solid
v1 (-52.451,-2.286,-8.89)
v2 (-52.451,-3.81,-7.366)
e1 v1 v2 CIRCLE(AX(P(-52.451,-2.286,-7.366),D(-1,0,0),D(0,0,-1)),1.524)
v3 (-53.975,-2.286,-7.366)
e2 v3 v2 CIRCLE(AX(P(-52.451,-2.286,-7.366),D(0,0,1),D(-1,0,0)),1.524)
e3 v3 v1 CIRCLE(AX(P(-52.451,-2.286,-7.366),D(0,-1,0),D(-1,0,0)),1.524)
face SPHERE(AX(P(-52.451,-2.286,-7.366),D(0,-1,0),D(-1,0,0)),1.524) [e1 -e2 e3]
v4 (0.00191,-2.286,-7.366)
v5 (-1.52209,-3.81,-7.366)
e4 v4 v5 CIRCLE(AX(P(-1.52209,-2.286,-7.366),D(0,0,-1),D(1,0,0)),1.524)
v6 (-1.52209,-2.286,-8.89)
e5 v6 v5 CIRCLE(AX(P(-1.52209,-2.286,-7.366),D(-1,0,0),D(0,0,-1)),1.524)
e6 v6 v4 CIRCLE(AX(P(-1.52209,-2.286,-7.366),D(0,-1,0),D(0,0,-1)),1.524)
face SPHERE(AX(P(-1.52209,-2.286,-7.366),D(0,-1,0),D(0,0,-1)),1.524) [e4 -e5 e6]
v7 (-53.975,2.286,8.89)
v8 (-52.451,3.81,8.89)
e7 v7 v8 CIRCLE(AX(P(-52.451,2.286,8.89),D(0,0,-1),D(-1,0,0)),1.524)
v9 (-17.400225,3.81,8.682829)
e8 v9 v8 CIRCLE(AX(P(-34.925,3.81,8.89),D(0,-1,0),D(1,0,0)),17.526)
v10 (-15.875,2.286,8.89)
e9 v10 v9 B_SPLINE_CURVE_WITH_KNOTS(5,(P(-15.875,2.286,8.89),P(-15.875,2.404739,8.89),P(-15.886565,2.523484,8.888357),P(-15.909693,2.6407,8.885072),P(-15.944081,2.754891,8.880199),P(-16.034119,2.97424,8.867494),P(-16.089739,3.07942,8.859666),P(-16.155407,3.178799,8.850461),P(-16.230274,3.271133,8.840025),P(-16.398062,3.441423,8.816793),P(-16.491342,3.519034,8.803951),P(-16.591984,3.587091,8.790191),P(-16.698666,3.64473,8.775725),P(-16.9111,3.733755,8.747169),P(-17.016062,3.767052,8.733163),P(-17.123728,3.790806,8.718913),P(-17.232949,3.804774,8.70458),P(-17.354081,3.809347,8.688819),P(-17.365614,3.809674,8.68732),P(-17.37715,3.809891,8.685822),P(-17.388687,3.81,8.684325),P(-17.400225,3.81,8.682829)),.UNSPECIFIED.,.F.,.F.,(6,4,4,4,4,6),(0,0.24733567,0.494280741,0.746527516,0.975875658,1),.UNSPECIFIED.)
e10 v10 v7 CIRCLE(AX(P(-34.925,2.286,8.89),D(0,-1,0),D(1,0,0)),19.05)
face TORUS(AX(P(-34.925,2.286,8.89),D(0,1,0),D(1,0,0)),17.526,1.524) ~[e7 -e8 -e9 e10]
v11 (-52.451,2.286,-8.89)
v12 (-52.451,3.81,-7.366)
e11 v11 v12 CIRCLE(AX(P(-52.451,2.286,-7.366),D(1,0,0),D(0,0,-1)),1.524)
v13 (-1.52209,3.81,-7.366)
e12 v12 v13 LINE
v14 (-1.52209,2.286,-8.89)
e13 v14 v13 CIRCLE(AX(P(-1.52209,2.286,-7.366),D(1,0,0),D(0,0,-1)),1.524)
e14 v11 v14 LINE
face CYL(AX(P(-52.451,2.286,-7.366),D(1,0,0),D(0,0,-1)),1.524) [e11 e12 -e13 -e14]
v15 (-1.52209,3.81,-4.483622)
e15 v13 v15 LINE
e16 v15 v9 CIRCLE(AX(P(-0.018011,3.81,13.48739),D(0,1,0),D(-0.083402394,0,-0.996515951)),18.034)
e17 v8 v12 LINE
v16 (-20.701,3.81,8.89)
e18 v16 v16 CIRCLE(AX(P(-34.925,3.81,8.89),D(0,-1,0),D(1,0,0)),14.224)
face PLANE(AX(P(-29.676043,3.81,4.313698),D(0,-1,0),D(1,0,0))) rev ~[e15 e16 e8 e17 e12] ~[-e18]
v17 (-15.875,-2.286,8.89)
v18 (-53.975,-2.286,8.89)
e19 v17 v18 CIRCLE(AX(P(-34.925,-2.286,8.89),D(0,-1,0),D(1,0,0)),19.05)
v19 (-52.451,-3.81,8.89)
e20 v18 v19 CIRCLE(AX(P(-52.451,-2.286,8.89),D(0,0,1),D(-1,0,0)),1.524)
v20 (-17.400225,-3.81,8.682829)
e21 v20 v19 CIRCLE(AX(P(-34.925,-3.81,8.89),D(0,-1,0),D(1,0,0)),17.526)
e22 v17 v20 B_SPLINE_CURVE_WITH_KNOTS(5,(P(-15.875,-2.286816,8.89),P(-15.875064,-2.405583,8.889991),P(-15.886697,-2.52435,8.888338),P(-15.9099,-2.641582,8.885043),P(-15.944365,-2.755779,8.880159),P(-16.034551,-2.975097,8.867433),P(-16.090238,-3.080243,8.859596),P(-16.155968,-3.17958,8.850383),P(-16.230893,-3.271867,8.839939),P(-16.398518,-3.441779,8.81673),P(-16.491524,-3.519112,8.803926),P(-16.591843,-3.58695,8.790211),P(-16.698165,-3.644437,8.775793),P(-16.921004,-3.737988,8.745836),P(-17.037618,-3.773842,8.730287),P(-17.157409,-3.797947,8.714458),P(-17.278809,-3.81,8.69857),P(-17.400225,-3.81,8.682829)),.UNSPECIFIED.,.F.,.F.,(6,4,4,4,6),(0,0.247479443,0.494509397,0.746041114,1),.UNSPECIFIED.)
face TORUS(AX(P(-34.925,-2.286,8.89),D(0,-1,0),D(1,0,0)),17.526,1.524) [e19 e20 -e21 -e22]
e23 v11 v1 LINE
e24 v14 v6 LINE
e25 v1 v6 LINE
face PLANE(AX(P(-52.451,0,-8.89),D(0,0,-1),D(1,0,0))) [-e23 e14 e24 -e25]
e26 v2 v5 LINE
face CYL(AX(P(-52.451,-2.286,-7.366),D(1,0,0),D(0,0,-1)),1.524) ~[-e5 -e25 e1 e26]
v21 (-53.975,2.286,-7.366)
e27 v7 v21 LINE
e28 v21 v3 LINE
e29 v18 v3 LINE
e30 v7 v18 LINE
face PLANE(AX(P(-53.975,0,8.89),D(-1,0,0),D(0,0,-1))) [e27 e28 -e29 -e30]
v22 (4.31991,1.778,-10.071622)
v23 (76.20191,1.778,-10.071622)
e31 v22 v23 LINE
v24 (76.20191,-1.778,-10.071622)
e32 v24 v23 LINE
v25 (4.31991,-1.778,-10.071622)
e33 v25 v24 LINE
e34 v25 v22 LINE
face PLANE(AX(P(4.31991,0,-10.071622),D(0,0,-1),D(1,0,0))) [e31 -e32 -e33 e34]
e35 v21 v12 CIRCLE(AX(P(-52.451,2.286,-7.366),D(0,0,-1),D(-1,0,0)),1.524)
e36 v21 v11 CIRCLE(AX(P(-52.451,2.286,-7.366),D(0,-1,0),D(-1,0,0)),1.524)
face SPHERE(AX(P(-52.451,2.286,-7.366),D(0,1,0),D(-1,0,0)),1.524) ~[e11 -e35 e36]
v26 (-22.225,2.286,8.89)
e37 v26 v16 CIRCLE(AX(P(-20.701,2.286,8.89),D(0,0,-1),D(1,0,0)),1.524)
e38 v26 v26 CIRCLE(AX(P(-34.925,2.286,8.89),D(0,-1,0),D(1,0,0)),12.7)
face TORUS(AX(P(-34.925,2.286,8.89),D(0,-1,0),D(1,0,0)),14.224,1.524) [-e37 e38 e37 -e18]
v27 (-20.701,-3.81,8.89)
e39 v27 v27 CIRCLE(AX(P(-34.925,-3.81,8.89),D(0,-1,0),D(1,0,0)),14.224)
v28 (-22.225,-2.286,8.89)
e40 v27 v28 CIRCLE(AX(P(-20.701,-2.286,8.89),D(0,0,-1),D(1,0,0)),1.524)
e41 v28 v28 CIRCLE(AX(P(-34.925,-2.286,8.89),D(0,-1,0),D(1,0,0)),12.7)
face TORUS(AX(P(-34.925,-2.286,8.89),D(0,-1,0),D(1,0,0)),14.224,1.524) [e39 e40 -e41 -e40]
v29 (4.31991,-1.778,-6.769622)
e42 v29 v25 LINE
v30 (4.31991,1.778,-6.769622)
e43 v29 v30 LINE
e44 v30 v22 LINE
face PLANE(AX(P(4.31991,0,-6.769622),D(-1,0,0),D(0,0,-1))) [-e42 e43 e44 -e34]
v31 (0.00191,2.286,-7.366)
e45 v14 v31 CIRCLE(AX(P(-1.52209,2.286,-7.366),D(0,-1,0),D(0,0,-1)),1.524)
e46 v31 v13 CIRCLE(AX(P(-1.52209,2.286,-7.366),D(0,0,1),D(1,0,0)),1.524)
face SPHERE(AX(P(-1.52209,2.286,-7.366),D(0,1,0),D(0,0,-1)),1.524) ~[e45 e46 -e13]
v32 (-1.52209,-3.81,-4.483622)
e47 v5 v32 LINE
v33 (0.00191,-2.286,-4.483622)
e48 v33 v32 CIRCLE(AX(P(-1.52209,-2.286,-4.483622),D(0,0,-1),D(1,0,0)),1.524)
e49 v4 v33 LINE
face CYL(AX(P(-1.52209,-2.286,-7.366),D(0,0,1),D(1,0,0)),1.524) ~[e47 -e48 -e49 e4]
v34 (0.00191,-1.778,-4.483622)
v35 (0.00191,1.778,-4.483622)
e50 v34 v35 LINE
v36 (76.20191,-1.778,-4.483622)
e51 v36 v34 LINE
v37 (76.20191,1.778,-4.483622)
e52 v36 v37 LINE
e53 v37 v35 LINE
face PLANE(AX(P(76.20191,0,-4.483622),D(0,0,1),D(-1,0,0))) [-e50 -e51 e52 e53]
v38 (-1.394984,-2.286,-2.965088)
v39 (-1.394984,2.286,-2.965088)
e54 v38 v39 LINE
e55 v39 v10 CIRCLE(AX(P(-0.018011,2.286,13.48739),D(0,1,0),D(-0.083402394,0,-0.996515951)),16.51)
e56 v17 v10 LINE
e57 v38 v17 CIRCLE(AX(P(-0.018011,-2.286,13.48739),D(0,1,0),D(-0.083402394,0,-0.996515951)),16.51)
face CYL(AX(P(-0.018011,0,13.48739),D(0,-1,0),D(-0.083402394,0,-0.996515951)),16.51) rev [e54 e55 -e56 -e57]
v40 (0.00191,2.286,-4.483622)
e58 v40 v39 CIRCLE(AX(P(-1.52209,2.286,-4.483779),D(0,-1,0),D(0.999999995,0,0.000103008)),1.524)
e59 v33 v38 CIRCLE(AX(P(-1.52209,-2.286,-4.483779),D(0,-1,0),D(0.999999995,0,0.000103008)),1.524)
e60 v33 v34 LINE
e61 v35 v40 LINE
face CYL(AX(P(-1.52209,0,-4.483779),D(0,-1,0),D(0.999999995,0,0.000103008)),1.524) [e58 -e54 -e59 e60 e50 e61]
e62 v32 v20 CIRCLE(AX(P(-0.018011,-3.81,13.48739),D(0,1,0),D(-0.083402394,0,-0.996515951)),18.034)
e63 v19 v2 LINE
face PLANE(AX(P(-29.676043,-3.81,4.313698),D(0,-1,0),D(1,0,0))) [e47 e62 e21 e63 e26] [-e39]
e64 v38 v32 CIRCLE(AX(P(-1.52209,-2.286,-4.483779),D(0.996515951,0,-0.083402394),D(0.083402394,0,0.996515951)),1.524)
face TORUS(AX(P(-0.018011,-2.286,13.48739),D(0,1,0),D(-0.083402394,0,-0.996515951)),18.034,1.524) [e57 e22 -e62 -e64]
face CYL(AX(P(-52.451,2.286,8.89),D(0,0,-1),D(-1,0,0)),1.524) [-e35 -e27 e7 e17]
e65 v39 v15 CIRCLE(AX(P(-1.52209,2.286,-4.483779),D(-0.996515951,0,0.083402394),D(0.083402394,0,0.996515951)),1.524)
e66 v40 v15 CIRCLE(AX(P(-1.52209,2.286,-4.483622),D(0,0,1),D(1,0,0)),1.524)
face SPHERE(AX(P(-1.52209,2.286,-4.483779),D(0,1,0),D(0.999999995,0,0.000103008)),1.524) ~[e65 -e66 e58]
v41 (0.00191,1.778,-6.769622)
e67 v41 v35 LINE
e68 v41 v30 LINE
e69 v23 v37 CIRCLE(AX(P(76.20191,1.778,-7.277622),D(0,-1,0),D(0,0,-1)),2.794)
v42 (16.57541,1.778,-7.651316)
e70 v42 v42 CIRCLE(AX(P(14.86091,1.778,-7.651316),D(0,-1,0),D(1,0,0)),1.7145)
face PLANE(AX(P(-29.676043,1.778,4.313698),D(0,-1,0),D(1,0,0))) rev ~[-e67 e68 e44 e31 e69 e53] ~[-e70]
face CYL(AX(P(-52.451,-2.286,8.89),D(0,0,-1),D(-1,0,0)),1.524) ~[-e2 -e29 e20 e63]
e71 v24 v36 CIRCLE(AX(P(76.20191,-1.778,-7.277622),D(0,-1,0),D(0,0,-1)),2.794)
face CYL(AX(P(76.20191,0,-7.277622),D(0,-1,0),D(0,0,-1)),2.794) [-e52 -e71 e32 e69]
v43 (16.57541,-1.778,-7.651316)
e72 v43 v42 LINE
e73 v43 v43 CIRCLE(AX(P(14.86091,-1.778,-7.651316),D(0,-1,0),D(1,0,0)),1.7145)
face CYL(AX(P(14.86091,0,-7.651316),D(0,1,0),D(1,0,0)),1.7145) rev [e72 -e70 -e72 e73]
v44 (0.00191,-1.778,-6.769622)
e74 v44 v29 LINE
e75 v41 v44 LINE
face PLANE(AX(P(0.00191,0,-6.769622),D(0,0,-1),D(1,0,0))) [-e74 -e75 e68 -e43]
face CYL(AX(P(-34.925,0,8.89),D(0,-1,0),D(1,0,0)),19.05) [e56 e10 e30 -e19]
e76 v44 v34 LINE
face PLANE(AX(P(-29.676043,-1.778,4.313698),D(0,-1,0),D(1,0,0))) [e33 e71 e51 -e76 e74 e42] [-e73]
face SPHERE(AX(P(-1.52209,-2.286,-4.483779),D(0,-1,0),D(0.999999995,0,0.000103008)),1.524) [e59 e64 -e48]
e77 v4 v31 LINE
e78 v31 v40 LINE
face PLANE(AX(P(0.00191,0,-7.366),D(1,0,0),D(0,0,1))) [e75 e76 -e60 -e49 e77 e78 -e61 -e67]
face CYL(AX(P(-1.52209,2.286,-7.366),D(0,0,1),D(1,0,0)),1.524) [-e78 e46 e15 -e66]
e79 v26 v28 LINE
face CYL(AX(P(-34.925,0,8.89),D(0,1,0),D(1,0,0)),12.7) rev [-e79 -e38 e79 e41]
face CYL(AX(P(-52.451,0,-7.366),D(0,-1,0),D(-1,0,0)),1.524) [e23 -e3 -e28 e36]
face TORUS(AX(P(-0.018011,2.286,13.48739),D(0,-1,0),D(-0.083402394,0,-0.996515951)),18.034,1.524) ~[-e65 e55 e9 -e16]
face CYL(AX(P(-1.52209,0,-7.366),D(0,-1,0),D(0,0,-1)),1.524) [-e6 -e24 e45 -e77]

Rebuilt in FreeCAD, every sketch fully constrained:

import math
import FreeCAD as App
import Part
import Sketcher
from FreeCAD import Vector
Q = App.Units.Quantity


def edges_at(feature, points):
    """Names of the edges that pass closest to the given points."""
    edges = feature.Shape.Edges
    near = lambda p: min(range(len(edges)), key=lambda i: edges[i].distToShape(Part.Vertex(*p))[0])
    return sorted({f"Edge{near(p) + 1}" for p in points})

doc = App.newDocument("Part")
body = doc.addObject("PartDesign::Body", "Body")

# Sketch on XZ plane
sketch1 = body.newObject("Sketcher::SketchObject", "Sketch")
sketch1.AttachmentSupport = (doc.getObject("XZ_Plane"), [""])
sketch1.MapMode = "FlatFace"
sketch1.addGeometry(Part.ArcOfCircle(Part.Circle(Vector(-34.9, 8.9, 0), Vector(0, 0, 1), 19.1), math.radians(0), math.radians(180)), False)
sketch1.addGeometry(Part.LineSegment(Vector(-54, 8.9, 0), Vector(-54, -7.4, 0)), False)
sketch1.addGeometry(Part.ArcOfCircle(Part.Circle(Vector(-52.5, -7.4, 0), Vector(0, 0, 1), 1.5), math.radians(180), math.radians(270)), False)
sketch1.addGeometry(Part.LineSegment(Vector(-52.5, -8.9, 0), Vector(-1.5, -8.9, 0)), False)
sketch1.addGeometry(Part.ArcOfCircle(Part.Circle(Vector(-1.5, -7.4, 0), Vector(0, 0, 1), 1.5), math.radians(-90), math.radians(0)), False)
sketch1.addGeometry(Part.LineSegment(Vector(0, -7.4, 0), Vector(0, -6.8, 0)), False)
sketch1.addGeometry(Part.LineSegment(Vector(0, -6.8, 0), Vector(4.3, -6.8, 0)), False)
sketch1.addGeometry(Part.LineSegment(Vector(4.3, -6.8, 0), Vector(4.3, -10.1, 0)), False)
sketch1.addGeometry(Part.LineSegment(Vector(4.3, -10.1, 0), Vector(76.2, -10.1, 0)), False)
sketch1.addGeometry(Part.ArcOfCircle(Part.Circle(Vector(76.2, -7.3, 0), Vector(0, 0, 1), 2.8), math.radians(-90), math.radians(90)), False)
sketch1.addGeometry(Part.LineSegment(Vector(76.2, -4.5, 0), Vector(0, -4.5, 0)), False)
sketch1.addGeometry(Part.ArcOfCircle(Part.Circle(Vector(-1.5, -4.5, 0), Vector(0, 0, 1), 1.5), math.radians(0), math.radians(85)), False)
sketch1.addGeometry(Part.ArcOfCircle(Part.Circle(Vector(0, 13.5, 0), Vector(0, 0, 1), 16.5), math.radians(-164), math.radians(-95)), False)
sketch1.addGeometry(Part.Circle(Vector(14.9, -7.7, 0), Vector(0, 0, 1), 1.7), False)
sketch1.addGeometry(Part.Circle(Vector(-34.9, 8.9, 0), Vector(0, 0, 1), 12.7), False)
sketch1.addConstraint(Sketcher.Constraint("Tangent", 0, 2, 1, 1))
sketch1.addConstraint(Sketcher.Constraint("Tangent", 1, 2, 2, 1))
sketch1.addConstraint(Sketcher.Constraint("Tangent", 2, 2, 3, 1))
sketch1.addConstraint(Sketcher.Constraint("Tangent", 3, 2, 4, 1))
sketch1.addConstraint(Sketcher.Constraint("Tangent", 4, 2, 5, 1))
sketch1.addConstraint(Sketcher.Constraint("Coincident", 5, 2, 6, 1))
sketch1.addConstraint(Sketcher.Constraint("Coincident", 6, 2, 7, 1))
sketch1.addConstraint(Sketcher.Constraint("Coincident", 7, 2, 8, 1))
sketch1.addConstraint(Sketcher.Constraint("Tangent", 8, 2, 9, 1))
sketch1.addConstraint(Sketcher.Constraint("Tangent", 9, 2, 10, 1))
sketch1.addConstraint(Sketcher.Constraint("Coincident", 10, 2, 11, 1))
sketch1.addConstraint(Sketcher.Constraint("Tangent", 11, 2, 12, 2))
sketch1.addConstraint(Sketcher.Constraint("Coincident", 12, 1, 0, 1))
sketch1.addConstraint(Sketcher.Constraint("Vertical", 1))
sketch1.addConstraint(Sketcher.Constraint("Horizontal", 3))
sketch1.addConstraint(Sketcher.Constraint("Vertical", 5))
sketch1.addConstraint(Sketcher.Constraint("Horizontal", 6))
sketch1.addConstraint(Sketcher.Constraint("Vertical", 7))
sketch1.addConstraint(Sketcher.Constraint("Horizontal", 8))
sketch1.addConstraint(Sketcher.Constraint("Horizontal", 10))
sketch1.addConstraint(Sketcher.Constraint("Coincident", 14, 3, 0, 3))
sketch1.addConstraint(Sketcher.Constraint("Equal", 2, 4))
sketch1.addConstraint(Sketcher.Constraint("Equal", 4, 11))
sketch1.addConstraint(Sketcher.Constraint("Horizontal", 0, 2, 12, 1))
sketch1.addConstraint(Sketcher.Constraint("Vertical", 4, 3, 11, 3))
sketch1.addConstraint(Sketcher.Constraint("Diameter", 14, Q("1 in")))
sketch1.addConstraint(Sketcher.Constraint("DistanceX", 10, 2, 10, 1, Q("3 in")))
sketch1.addConstraint(Sketcher.Constraint("Radius", 0, Q("0.75 in")))
sketch1.addConstraint(Sketcher.Constraint("Radius", 2, Q("0.06 in")))
sketch1.addConstraint(Sketcher.Constraint("Radius", 9, Q("0.11 in")))
sketch1.addConstraint(Sketcher.Constraint("Radius", 12, Q("0.65 in")))
sketch1.addConstraint(Sketcher.Constraint("Diameter", 13, Q("0.135 in")))
sketch1.addConstraint(Sketcher.Constraint("DistanceX", 6, 1, 6, 2, Q("0.17 in")))
sketch1.addConstraint(Sketcher.Constraint("DistanceY", 1, 2, 1, 1, Q("0.64 in")))
sketch1.addConstraint(Sketcher.Constraint("DistanceY", 7, 2, 7, 1, Q("0.13 in")))
sketch1.addConstraint(Sketcher.Constraint("DistanceY", -1, 1, 0, 3, Q("0.35 in")))
sketch1.addConstraint(Sketcher.Constraint("DistanceX", 0, 3, -1, 1, Q("1.375 in")))
sketch1.addConstraint(Sketcher.Constraint("DistanceX", 4, 3, 13, 3, Q("0.645 in")))
sketch1.addConstraint(Sketcher.Constraint("DistanceX", 3, 1, 3, 2, Q("50.92891 mm")))
sketch1.addConstraint(Sketcher.Constraint("DistanceY", 5, 1, 5, 2, Q("0.596378 mm")))
sketch1.addConstraint(Sketcher.Constraint("DistanceY", 11, 3, -1, 1, Q("4.483779 mm")))
sketch1.addConstraint(Sketcher.Constraint("DistanceY", 13, 3, -1, 1, Q("7.651316 mm")))
pad1 = body.newObject("PartDesign::Pad", "Pad")
pad1.Profile = sketch1
pad1.Length = Q("0.14 in")
pad1.Midplane = True

# Sketch on XZ plane
sketch2 = body.newObject("Sketcher::SketchObject", "Sketch001")
sketch2.AttachmentSupport = (doc.getObject("XZ_Plane"), [""])
sketch2.MapMode = "FlatFace"
sketch2.addGeometry(Part.ArcOfCircle(Part.Circle(Vector(-34.9, 8.9, 0), Vector(0, 0, 1), 19.1), math.radians(0), math.radians(180)), False)
sketch2.addGeometry(Part.LineSegment(Vector(-54, 8.9, 0), Vector(-54, -7.4, 0)), False)
sketch2.addGeometry(Part.ArcOfCircle(Part.Circle(Vector(-52.5, -7.4, 0), Vector(0, 0, 1), 1.5), math.radians(180), math.radians(270)), False)
sketch2.addGeometry(Part.LineSegment(Vector(-52.5, -8.9, 0), Vector(-1.5, -8.9, 0)), False)
sketch2.addGeometry(Part.ArcOfCircle(Part.Circle(Vector(-1.5, -7.4, 0), Vector(0, 0, 1), 1.5), math.radians(-90), math.radians(0)), False)
sketch2.addGeometry(Part.LineSegment(Vector(0, -7.4, 0), Vector(0, -4.5, 0)), False)
sketch2.addGeometry(Part.ArcOfCircle(Part.Circle(Vector(-1.5, -4.5, 0), Vector(0, 0, 1), 1.5), math.radians(0), math.radians(85)), False)
sketch2.addGeometry(Part.ArcOfCircle(Part.Circle(Vector(0, 13.5, 0), Vector(0, 0, 1), 16.5), math.radians(-164), math.radians(-95)), False)
sketch2.addGeometry(Part.Circle(Vector(-34.9, 8.9, 0), Vector(0, 0, 1), 12.7), False)
sketch2.addConstraint(Sketcher.Constraint("Tangent", 0, 2, 1, 1))
sketch2.addConstraint(Sketcher.Constraint("Tangent", 1, 2, 2, 1))
sketch2.addConstraint(Sketcher.Constraint("Tangent", 2, 2, 3, 1))
sketch2.addConstraint(Sketcher.Constraint("Tangent", 3, 2, 4, 1))
sketch2.addConstraint(Sketcher.Constraint("Tangent", 4, 2, 5, 1))
sketch2.addConstraint(Sketcher.Constraint("Coincident", 5, 2, 6, 1))
sketch2.addConstraint(Sketcher.Constraint("Tangent", 6, 2, 7, 2))
sketch2.addConstraint(Sketcher.Constraint("Coincident", 7, 1, 0, 1))
sketch2.addConstraint(Sketcher.Constraint("Vertical", 1))
sketch2.addConstraint(Sketcher.Constraint("Horizontal", 3))
sketch2.addConstraint(Sketcher.Constraint("Vertical", 5))
sketch2.addConstraint(Sketcher.Constraint("Coincident", 8, 3, 0, 3))
sketch2.addConstraint(Sketcher.Constraint("Equal", 2, 4))
sketch2.addConstraint(Sketcher.Constraint("Equal", 4, 6))
sketch2.addConstraint(Sketcher.Constraint("Horizontal", 0, 2, 7, 1))
sketch2.addConstraint(Sketcher.Constraint("Diameter", 8, Q("1 in")))
sketch2.addConstraint(Sketcher.Constraint("Radius", 0, Q("0.75 in")))
sketch2.addConstraint(Sketcher.Constraint("Radius", 2, Q("0.06 in")))
sketch2.addConstraint(Sketcher.Constraint("Radius", 7, Q("0.65 in")))
sketch2.addConstraint(Sketcher.Constraint("DistanceY", 1, 2, 1, 1, Q("0.64 in")))
sketch2.addConstraint(Sketcher.Constraint("DistanceY", -1, 1, 0, 3, Q("0.35 in")))
sketch2.addConstraint(Sketcher.Constraint("DistanceX", 0, 3, -1, 1, Q("1.375 in")))
sketch2.addConstraint(Sketcher.Constraint("DistanceX", 3, 1, 3, 2, Q("50.92891 mm")))
sketch2.addConstraint(Sketcher.Constraint("DistanceY", 5, 1, 5, 2, Q("2.882378 mm")))
sketch2.addConstraint(Sketcher.Constraint("DistanceY", 6, 3, -1, 1, Q("4.483779 mm")))
pad2 = body.newObject("PartDesign::Pad", "Pad001")
pad2.Profile = sketch2
pad2.Length = Q("0.3 in")
pad2.Midplane = True
doc.recompute()

fillet = body.newObject("PartDesign::Fillet", "Fillet")
fillet.Base = (pad2, edges_at(pad2, [
    (-34.925, -3.81, 27.94),
    (-47.625, -3.81, 8.89),
    (-47.625, 3.81, 8.89),
    (-34.925, 3.81, 27.94),
]))
fillet.Radius = Q("0.06 in")

doc.recompute()
